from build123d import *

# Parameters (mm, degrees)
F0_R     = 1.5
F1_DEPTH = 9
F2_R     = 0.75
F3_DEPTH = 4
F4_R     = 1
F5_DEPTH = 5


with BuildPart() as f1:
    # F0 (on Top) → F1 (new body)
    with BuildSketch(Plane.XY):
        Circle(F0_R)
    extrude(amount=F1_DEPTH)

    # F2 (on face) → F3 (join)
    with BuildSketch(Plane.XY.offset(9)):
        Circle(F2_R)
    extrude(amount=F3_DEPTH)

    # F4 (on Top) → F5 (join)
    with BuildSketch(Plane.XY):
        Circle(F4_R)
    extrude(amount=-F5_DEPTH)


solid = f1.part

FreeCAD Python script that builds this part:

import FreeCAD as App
import Part
import Sketcher
Q = App.Units.Quantity

doc = App.newDocument("Part")
params = doc.addObject("Spreadsheet::Sheet", "Params")
for row, (alias, value) in enumerate([
    ("sketch1_diameter", "3 mm"),
    ("pad1_length", "9 mm"),
    ("sketch2_diameter", "1.5 mm"),
    ("pad2_length", "4 mm"),
    ("sketch3_diameter", "2 mm"),
    ("pad3_length", "5 mm"),
], start=1):
    params.set(f"A{row}", alias)
    params.set(f"B{row}", "=" + value)
    params.setAlias(f"B{row}", alias)

body = doc.addObject("PartDesign::Body", "Body")

# Sketch on XY plane
sketch1 = body.newObject("Sketcher::SketchObject", "Sketch")
sketch1.AttachmentSupport = (doc.getObject("XY_Plane"), [""])
sketch1.MapMode = "FlatFace"
sketch1.addGeometry(Part.Circle(App.Vector(0, 0, 0), App.Vector(0, 0, 1), 1.5), False)
sketch1.addConstraint(Sketcher.Constraint("Coincident", 0, 3, -1, 1))
sketch1.addConstraint(Sketcher.Constraint("Diameter", 0, Q("3 mm")))
sketch1.setExpression("Constraints[1]", "Params.sketch1_diameter")
pad1 = body.newObject("PartDesign::Pad", "Pad")
pad1.Profile = sketch1
pad1.setExpression("Length", "Params.pad1_length")

# Sketch on XY plane
sketch2 = body.newObject("Sketcher::SketchObject", "Sketch001")
sketch2.AttachmentSupport = (doc.getObject("XY_Plane"), [""])
sketch2.MapMode = "FlatFace"
sketch2.AttachmentOffset = App.Placement(App.Vector(0, 0, 9), App.Rotation())
sketch2.addGeometry(Part.Circle(App.Vector(0, 0, 0), App.Vector(0, 0, 1), 0.75), False)
sketch2.addConstraint(Sketcher.Constraint("Coincident", 0, 3, -1, 1))
sketch2.addConstraint(Sketcher.Constraint("Diameter", 0, Q("1.5 mm")))
sketch2.setExpression("Constraints[1]", "Params.sketch2_diameter")
pad2 = body.newObject("PartDesign::Pad", "Pad001")
pad2.Profile = sketch2
pad2.setExpression("Length", "Params.pad2_length")

# Sketch on XY plane
sketch3 = body.newObject("Sketcher::SketchObject", "Sketch002")
sketch3.AttachmentSupport = (doc.getObject("XY_Plane"), [""])
sketch3.MapMode = "FlatFace"
sketch3.addGeometry(Part.Circle(App.Vector(0, 0, 0), App.Vector(0, 0, 1), 1), False)
sketch3.addConstraint(Sketcher.Constraint("Coincident", 0, 3, -1, 1))
sketch3.addConstraint(Sketcher.Constraint("Diameter", 0, Q("2 mm")))
sketch3.setExpression("Constraints[1]", "Params.sketch3_diameter")
pad3 = body.newObject("PartDesign::Pad", "Pad002")
pad3.Profile = sketch3
pad3.setExpression("Length", "Params.pad3_length")
pad3.Reversed = True

doc.recompute()
